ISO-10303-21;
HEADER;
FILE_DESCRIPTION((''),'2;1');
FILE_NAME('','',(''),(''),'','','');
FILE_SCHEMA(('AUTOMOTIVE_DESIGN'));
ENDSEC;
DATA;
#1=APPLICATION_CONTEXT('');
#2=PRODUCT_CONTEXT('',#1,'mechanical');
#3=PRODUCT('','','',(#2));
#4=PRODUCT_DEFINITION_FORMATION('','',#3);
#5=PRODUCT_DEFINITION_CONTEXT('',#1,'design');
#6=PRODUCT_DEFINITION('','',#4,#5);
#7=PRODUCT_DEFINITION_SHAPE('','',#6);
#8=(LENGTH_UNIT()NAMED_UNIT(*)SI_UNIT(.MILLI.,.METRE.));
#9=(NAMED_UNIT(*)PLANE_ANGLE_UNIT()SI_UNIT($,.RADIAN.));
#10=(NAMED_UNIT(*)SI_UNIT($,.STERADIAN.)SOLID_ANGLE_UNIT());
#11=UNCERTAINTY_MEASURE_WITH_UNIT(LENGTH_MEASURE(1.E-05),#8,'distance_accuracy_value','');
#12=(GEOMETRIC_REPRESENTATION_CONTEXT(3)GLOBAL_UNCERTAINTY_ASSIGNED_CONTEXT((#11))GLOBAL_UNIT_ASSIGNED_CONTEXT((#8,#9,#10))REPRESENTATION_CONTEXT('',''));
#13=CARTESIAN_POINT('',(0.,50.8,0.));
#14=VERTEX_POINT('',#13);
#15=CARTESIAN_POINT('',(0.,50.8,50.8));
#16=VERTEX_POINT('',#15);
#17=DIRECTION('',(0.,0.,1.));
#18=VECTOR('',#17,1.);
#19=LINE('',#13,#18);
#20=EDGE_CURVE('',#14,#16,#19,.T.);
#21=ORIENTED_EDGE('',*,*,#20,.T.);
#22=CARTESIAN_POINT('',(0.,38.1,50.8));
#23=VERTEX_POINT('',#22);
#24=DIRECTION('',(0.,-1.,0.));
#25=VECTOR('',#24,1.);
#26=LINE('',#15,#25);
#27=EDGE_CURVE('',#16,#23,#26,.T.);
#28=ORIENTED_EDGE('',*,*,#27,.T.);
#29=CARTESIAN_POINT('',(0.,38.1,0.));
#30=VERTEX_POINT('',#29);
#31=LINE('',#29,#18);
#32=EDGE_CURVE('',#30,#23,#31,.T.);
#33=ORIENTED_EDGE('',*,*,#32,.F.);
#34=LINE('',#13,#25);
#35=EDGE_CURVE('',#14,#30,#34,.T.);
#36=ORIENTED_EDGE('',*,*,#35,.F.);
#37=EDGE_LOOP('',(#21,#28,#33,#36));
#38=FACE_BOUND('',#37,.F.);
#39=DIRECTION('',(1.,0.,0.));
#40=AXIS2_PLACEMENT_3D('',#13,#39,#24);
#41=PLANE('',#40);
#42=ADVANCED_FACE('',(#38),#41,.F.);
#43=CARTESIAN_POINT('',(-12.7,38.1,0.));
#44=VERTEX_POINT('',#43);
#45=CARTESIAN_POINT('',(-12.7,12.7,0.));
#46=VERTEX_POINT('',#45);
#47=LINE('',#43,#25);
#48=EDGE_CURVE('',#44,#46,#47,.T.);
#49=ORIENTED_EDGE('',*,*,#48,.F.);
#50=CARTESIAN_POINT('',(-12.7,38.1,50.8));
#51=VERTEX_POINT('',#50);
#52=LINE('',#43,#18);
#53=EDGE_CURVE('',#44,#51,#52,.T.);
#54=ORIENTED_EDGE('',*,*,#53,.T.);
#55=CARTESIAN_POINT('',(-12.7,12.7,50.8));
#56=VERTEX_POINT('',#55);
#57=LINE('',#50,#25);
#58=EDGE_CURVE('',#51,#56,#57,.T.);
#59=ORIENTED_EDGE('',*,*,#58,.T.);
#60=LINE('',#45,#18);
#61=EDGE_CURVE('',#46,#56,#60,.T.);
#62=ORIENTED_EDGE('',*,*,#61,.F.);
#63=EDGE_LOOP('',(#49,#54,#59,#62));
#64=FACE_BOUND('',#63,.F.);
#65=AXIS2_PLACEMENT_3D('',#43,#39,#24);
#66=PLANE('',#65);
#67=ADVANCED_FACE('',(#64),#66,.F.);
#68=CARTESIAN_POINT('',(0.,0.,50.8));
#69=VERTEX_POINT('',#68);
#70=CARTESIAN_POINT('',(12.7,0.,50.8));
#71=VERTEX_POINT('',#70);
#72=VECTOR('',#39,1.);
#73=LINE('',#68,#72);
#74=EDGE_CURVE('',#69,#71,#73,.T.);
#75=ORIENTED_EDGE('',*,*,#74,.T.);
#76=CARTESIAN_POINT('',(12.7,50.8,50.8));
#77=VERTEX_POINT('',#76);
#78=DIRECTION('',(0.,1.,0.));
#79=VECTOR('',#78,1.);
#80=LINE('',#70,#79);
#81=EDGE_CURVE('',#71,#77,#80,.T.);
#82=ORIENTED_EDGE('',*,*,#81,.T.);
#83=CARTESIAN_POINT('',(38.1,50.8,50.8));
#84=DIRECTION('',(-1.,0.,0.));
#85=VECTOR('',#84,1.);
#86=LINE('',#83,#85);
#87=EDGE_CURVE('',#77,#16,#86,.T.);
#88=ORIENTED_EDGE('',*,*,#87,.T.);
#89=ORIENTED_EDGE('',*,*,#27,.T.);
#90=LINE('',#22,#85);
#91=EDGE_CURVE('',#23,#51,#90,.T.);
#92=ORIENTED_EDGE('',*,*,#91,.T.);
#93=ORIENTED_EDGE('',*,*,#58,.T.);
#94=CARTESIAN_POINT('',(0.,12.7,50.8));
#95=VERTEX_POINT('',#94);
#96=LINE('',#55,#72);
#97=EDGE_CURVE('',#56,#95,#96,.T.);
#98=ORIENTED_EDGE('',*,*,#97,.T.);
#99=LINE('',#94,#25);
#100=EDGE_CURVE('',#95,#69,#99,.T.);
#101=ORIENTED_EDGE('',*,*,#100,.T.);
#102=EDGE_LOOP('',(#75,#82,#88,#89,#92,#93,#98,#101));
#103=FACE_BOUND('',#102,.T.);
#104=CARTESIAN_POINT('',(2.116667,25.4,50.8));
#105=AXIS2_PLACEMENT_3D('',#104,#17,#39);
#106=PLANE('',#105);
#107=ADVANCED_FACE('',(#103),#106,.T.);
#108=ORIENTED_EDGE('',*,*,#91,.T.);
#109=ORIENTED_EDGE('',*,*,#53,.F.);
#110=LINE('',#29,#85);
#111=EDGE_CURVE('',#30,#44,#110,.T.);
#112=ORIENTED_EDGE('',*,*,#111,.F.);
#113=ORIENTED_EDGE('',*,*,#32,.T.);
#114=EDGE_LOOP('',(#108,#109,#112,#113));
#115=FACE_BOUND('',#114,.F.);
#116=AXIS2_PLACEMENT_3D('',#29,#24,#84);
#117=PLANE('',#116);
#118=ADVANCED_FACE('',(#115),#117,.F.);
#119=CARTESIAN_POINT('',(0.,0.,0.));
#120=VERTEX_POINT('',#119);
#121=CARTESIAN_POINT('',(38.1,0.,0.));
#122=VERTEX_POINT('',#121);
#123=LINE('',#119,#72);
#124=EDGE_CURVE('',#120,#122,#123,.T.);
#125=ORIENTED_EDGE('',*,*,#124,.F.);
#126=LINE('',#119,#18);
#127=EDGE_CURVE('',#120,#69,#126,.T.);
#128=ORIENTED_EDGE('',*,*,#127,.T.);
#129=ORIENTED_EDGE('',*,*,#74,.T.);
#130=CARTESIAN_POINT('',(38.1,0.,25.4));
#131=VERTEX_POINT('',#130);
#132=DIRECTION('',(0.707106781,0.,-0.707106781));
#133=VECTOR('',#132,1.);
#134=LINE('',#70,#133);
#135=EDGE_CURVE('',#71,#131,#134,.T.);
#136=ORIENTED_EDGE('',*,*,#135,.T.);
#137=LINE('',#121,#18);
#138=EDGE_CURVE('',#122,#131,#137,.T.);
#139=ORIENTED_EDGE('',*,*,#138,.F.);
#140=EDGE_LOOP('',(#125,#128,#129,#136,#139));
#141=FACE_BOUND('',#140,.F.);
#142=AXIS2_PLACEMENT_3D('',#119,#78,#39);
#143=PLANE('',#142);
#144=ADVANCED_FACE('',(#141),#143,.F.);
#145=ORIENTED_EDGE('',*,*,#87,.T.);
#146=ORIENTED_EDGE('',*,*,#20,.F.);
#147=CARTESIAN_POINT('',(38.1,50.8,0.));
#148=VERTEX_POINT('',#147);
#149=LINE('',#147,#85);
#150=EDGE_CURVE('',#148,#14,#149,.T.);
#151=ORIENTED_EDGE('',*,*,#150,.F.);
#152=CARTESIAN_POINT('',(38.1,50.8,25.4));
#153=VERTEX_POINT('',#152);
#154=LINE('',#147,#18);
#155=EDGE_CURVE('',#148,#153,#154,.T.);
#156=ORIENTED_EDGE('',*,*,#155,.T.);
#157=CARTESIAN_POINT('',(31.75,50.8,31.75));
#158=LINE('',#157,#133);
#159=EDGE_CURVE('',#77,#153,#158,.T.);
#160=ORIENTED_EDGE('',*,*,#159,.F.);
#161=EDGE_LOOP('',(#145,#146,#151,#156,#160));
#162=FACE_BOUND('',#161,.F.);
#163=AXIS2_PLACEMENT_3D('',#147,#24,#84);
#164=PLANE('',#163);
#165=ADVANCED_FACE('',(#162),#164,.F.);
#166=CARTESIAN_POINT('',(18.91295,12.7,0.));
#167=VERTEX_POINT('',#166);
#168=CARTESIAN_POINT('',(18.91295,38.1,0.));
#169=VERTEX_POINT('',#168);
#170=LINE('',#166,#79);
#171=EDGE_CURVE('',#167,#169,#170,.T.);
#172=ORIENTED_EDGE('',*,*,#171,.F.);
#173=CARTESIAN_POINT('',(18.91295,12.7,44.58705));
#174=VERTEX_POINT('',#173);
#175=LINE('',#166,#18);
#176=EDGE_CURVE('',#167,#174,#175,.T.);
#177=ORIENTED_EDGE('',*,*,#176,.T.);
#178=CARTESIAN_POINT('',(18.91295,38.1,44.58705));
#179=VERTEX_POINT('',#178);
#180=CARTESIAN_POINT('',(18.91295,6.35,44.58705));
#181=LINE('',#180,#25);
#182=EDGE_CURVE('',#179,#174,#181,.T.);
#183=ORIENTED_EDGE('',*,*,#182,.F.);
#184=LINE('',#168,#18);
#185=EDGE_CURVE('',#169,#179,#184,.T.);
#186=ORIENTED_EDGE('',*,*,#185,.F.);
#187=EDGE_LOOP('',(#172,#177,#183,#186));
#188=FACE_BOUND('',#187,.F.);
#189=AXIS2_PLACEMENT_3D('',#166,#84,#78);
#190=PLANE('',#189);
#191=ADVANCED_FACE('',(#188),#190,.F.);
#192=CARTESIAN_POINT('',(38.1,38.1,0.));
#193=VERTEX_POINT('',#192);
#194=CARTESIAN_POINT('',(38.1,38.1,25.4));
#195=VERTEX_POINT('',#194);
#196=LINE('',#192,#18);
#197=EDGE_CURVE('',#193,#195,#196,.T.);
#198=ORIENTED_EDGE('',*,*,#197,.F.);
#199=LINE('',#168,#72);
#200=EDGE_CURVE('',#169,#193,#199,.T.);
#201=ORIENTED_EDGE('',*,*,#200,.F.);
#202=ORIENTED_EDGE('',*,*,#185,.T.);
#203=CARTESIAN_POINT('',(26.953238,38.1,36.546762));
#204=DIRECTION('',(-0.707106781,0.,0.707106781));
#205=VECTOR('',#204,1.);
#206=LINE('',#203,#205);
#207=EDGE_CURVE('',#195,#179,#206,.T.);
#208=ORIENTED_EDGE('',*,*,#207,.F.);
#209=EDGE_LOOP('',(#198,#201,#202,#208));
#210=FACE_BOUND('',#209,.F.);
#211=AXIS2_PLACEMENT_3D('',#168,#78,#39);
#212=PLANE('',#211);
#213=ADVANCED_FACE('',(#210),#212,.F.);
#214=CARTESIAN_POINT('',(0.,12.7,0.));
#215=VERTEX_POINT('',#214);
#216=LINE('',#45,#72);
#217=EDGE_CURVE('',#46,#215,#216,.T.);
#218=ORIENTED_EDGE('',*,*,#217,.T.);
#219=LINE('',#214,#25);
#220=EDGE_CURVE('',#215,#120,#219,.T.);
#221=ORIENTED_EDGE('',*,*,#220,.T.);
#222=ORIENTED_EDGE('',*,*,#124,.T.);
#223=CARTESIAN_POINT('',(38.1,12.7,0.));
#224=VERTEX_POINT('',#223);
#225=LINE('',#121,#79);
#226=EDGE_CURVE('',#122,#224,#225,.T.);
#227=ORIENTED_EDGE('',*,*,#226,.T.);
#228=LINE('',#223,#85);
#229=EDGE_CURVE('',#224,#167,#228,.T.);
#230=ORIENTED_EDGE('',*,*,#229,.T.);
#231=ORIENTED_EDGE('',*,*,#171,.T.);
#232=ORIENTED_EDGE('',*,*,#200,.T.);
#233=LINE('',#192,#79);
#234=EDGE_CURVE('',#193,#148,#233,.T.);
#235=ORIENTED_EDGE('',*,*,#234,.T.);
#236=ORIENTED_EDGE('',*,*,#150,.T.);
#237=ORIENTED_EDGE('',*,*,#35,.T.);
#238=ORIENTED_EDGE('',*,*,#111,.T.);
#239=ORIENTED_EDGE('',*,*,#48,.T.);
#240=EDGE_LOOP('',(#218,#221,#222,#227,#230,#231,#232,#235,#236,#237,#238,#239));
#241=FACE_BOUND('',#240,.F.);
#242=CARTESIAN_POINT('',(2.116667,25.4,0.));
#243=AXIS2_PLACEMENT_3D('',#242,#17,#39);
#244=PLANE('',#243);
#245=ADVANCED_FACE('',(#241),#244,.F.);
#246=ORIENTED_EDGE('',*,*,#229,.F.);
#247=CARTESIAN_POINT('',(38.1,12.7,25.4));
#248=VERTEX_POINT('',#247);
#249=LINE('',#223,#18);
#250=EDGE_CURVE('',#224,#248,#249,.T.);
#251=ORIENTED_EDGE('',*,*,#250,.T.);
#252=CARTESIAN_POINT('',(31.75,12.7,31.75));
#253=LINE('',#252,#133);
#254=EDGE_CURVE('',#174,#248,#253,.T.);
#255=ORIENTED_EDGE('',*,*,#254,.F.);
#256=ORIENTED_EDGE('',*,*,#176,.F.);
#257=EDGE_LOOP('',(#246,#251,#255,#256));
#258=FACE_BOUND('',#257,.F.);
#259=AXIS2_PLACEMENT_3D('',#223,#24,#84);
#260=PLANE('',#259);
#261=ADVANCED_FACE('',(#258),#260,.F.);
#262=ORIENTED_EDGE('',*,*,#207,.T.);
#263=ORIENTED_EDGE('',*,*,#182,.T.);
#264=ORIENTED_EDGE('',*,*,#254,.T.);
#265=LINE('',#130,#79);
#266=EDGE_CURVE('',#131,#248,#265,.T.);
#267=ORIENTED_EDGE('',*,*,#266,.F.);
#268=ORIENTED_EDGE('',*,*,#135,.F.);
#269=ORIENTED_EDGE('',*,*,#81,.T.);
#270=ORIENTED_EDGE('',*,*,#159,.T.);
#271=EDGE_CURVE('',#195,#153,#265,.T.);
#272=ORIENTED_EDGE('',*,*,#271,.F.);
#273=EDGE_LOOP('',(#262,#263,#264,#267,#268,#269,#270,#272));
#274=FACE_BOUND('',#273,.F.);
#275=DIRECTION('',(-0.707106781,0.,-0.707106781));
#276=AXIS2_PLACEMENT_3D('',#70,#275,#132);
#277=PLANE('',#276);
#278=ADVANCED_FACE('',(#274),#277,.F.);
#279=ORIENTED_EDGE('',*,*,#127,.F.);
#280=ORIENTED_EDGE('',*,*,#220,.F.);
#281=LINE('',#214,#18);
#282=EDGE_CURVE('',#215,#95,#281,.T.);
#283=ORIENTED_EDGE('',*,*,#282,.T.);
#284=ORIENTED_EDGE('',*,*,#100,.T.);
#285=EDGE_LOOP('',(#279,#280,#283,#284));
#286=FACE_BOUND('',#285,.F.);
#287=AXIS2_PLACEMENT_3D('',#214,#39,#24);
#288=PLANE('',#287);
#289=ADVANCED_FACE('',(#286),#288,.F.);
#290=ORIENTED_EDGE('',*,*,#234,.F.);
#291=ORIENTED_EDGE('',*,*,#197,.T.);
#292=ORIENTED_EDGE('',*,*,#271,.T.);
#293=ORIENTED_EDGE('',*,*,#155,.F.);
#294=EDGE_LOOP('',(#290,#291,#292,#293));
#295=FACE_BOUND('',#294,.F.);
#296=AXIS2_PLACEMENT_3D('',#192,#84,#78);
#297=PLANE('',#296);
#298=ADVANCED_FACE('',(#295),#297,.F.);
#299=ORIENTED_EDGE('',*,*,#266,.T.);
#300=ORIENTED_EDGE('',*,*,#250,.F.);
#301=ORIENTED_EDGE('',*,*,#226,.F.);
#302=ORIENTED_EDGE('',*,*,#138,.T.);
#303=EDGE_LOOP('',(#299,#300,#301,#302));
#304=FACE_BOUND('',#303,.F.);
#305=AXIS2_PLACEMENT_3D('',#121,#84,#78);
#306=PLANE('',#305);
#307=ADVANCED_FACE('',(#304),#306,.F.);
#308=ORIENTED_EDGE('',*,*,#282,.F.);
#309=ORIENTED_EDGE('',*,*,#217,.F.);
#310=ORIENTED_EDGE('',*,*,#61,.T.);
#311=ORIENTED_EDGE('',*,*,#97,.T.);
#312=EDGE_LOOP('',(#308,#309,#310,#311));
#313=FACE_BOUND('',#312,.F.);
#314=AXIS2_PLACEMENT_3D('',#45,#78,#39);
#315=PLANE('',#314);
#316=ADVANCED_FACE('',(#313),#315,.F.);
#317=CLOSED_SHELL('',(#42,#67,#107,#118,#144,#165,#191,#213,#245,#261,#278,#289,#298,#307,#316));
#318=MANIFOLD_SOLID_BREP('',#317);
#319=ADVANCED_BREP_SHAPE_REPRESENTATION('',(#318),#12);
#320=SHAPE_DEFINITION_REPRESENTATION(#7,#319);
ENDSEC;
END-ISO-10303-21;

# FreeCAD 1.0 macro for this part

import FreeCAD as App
import Part
import Sketcher
from FreeCAD import Vector
Q = App.Units.Quantity

doc = App.newDocument("Part")
body = doc.addObject("PartDesign::Body", "Body")

# Sketch on XY plane
sketch1 = body.newObject("Sketcher::SketchObject", "Sketch")
sketch1.AttachmentSupport = (doc.getObject("XY_Plane"), [""])
sketch1.MapMode = "FlatFace"
sketch1.addGeometry(Part.LineSegment(Vector(0, 13, 0), Vector(0, 0, 0)), False)
sketch1.addGeometry(Part.LineSegment(Vector(0, 0, 0), Vector(38, 0, 0)), False)
sketch1.addGeometry(Part.LineSegment(Vector(38, 0, 0), Vector(38, 13, 0)), False)
sketch1.addGeometry(Part.LineSegment(Vector(38, 13, 0), Vector(19, 13, 0)), False)
sketch1.addGeometry(Part.LineSegment(Vector(19, 13, 0), Vector(19, 38, 0)), False)
sketch1.addGeometry(Part.LineSegment(Vector(19, 38, 0), Vector(38, 38, 0)), False)
sketch1.addGeometry(Part.LineSegment(Vector(38, 38, 0), Vector(38, 51, 0)), False)
sketch1.addGeometry(Part.LineSegment(Vector(38, 51, 0), Vector(0, 51, 0)), False)
sketch1.addGeometry(Part.LineSegment(Vector(0, 51, 0), Vector(0, 38, 0)), False)
sketch1.addGeometry(Part.LineSegment(Vector(0, 38, 0), Vector(-13, 38, 0)), False)
sketch1.addGeometry(Part.LineSegment(Vector(-13, 38, 0), Vector(-13, 13, 0)), False)
sketch1.addGeometry(Part.LineSegment(Vector(-13, 13, 0), Vector(0, 13, 0)), False)
sketch1.addConstraint(Sketcher.Constraint("Coincident", 0, 2, 1, 1))
sketch1.addConstraint(Sketcher.Constraint("Coincident", 1, 2, 2, 1))
sketch1.addConstraint(Sketcher.Constraint("Coincident", 2, 2, 3, 1))
sketch1.addConstraint(Sketcher.Constraint("Coincident", 3, 2, 4, 1))
sketch1.addConstraint(Sketcher.Constraint("Coincident", 4, 2, 5, 1))
sketch1.addConstraint(Sketcher.Constraint("Coincident", 5, 2, 6, 1))
sketch1.addConstraint(Sketcher.Constraint("Coincident", 6, 2, 7, 1))
sketch1.addConstraint(Sketcher.Constraint("Coincident", 7, 2, 8, 1))
sketch1.addConstraint(Sketcher.Constraint("Coincident", 8, 2, 9, 1))
sketch1.addConstraint(Sketcher.Constraint("Coincident", 9, 2, 10, 1))
sketch1.addConstraint(Sketcher.Constraint("Coincident", 10, 2, 11, 1))
sketch1.addConstraint(Sketcher.Constraint("Coincident", 11, 2, 0, 1))
sketch1.addConstraint(Sketcher.Constraint("Vertical", 0))
sketch1.addConstraint(Sketcher.Constraint("Horizontal", 1))
sketch1.addConstraint(Sketcher.Constraint("Vertical", 2))
sketch1.addConstraint(Sketcher.Constraint("Horizontal", 3))
sketch1.addConstraint(Sketcher.Constraint("Vertical", 4))
sketch1.addConstraint(Sketcher.Constraint("Horizontal", 5))
sketch1.addConstraint(Sketcher.Constraint("Vertical", 6))
sketch1.addConstraint(Sketcher.Constraint("Horizontal", 7))
sketch1.addConstraint(Sketcher.Constraint("Vertical", 8))
sketch1.addConstraint(Sketcher.Constraint("Horizontal", 9))
sketch1.addConstraint(Sketcher.Constraint("Vertical", 10))
sketch1.addConstraint(Sketcher.Constraint("Horizontal", 11))
sketch1.addConstraint(Sketcher.Constraint("Coincident", 0, 2, -1, 1))
sketch1.addConstraint(Sketcher.Constraint("PointOnObject", 7, 2, -2))
sketch1.addConstraint(Sketcher.Constraint("Horizontal", 5, 2, 8, 2))
sketch1.addConstraint(Sketcher.Constraint("Horizontal", 3, 2, 10, 2))
sketch1.addConstraint(Sketcher.Constraint("Vertical", 2, 2, 5, 2))
sketch1.addConstraint(Sketcher.Constraint("Equal", 11, 0))
sketch1.addConstraint(Sketcher.Constraint("Equal", 2, 6))
sketch1.addConstraint(Sketcher.Constraint("DistanceY", 4, 1, 4, 2, Q("1 in")))
sketch1.addConstraint(Sketcher.Constraint("DistanceX", 1, 1, 1, 2, Q("1.5 in")))
sketch1.addConstraint(Sketcher.Constraint("DistanceX", 9, 2, 9, 1, Q("0.5 in")))
sketch1.addConstraint(Sketcher.Constraint("DistanceX", 3, 2, 3, 1, Q("19.18705 mm")))
pad1 = body.newObject("PartDesign::Pad", "Pad")
pad1.Profile = sketch1
pad1.Length = Q("2 in")

# Sketch on XZ plane
sketch2 = body.newObject("Sketcher::SketchObject", "Sketch001")
sketch2.AttachmentSupport = (doc.getObject("XZ_Plane"), [""])
sketch2.MapMode = "FlatFace"
sketch2.addGeometry(Part.LineSegment(Vector(13, 51, 0), Vector(38, 25, 0)), False)
sketch2.addGeometry(Part.LineSegment(Vector(38, 25, 0), Vector(38, 51, 0)), False)
sketch2.addGeometry(Part.LineSegment(Vector(38, 51, 0), Vector(13, 51, 0)), False)
sketch2.addConstraint(Sketcher.Constraint("Coincident", 0, 2, 1, 1))
sketch2.addConstraint(Sketcher.Constraint("Coincident", 1, 2, 2, 1))
sketch2.addConstraint(Sketcher.Constraint("Coincident", 2, 2, 0, 1))
sketch2.addConstraint(Sketcher.Constraint("Vertical", 1))
sketch2.addConstraint(Sketcher.Constraint("Horizontal", 2))
sketch2.addConstraint(Sketcher.Constraint("Equal", 2, 1))
sketch2.addConstraint(Sketcher.Constraint("DistanceX", 2, 2, 2, 1, Q("1 in")))
sketch2.addConstraint(Sketcher.Constraint("DistanceY", -1, 1, 0, 2, Q("1 in")))
sketch2.addConstraint(Sketcher.Constraint("DistanceX", -1, 1, 0, 2, Q("1.5 in")))
pocket1 = body.newObject("PartDesign::Pocket", "Pocket")
pocket1.Profile = sketch2
pocket1.Type = "ThroughAll"

doc.recompute()
